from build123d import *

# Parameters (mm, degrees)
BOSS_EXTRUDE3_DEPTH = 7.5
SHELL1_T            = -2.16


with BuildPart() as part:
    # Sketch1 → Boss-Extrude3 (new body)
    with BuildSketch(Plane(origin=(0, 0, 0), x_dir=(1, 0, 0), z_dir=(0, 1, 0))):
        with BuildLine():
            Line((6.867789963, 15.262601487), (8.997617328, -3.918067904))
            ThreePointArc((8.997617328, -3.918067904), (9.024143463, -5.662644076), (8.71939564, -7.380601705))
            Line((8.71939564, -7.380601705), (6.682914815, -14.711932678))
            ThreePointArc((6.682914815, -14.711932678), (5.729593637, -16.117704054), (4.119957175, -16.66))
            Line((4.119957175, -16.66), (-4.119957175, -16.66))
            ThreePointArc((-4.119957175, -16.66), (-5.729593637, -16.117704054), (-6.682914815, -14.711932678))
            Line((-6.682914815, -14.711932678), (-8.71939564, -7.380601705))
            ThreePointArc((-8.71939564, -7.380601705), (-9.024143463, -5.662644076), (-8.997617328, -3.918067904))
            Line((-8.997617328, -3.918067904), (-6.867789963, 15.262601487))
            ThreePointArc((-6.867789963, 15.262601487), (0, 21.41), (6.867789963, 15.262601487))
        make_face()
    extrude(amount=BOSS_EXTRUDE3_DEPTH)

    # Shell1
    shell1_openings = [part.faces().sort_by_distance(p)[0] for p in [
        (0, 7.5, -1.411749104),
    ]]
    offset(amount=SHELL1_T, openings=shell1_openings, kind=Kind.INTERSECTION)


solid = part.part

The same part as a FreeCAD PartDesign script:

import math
import FreeCAD as App
import Part
import Sketcher
from FreeCAD import Vector
Q = App.Units.Quantity


def faces_at(feature, points):
    """Names of the faces that lie closest to the given points."""
    faces = feature.Shape.Faces
    near = lambda p: min(range(len(faces)), key=lambda i: faces[i].distToShape(Part.Vertex(*p))[0])
    return sorted({f"Face{near(p) + 1}" for p in points})

doc = App.newDocument("Part")
body = doc.addObject("PartDesign::Body", "Body")

# Sketch on XZ plane
sketch1 = body.newObject("Sketcher::SketchObject", "Sketch")
sketch1.AttachmentSupport = (doc.getObject("XZ_Plane"), [""])
sketch1.MapMode = "FlatFace"
sketch1.addGeometry([
    Part.LineSegment(Vector(8.997617, 3.918068, 0), Vector(6.86779, -15.262601, 0)),  # 0
    Part.ArcOfCircle(Part.Circle(Vector(0, -14.5, 0), Vector(0, 0, 1), 6.91), math.radians(-173.663816), math.radians(-6.336184)),  # 1
    Part.LineSegment(Vector(-6.86779, -15.262601, 0), Vector(-8.997617, 3.918068, 0)),  # 2
    Part.ArcOfCircle(Part.Circle(Vector(0.106428, 4.928984, 0), Vector(0, 0, 1), 9.16), math.radians(164.475889), math.radians(186.336184)),  # 3
    Part.LineSegment(Vector(-8.719396, 7.380602, 0), Vector(-6.682915, 14.711933, 0)),  # 4
    Part.ArcOfCircle(Part.Circle(Vector(-4.119957, 14, 0), Vector(0, 0, 1), 2.66), math.radians(90), math.radians(164.475889)),  # 5
    Part.LineSegment(Vector(-4.119957, 16.66, 0), Vector(4.119957, 16.66, 0)),  # 6
    Part.ArcOfCircle(Part.Circle(Vector(4.119957, 14, 0), Vector(0, 0, 1), 2.66), math.radians(15.524111), math.radians(90)),  # 7
    Part.LineSegment(Vector(6.682915, 14.711933, 0), Vector(8.719396, 7.380602, 0)),  # 8
    Part.ArcOfCircle(Part.Circle(Vector(-0.106428, 4.928984, 0), Vector(0, 0, 1), 9.16), math.radians(-6.336184), math.radians(15.524111)),  # 9
], False)
sketch1.addConstraint([
    Sketcher.Constraint("Tangent", 0, 2, 1, 2),
    Sketcher.Constraint("Tangent", 1, 1, 2, 1),
    Sketcher.Constraint("Tangent", 2, 2, 3, 2),
    Sketcher.Constraint("Tangent", 3, 1, 4, 1),
    Sketcher.Constraint("Tangent", 4, 2, 5, 2),
    Sketcher.Constraint("Tangent", 5, 1, 6, 1),
    Sketcher.Constraint("Tangent", 6, 2, 7, 2),
    Sketcher.Constraint("Tangent", 7, 1, 8, 1),
    Sketcher.Constraint("Tangent", 8, 2, 9, 2),
    Sketcher.Constraint("Tangent", 9, 1, 0, 1),
    Sketcher.Constraint("Horizontal", 6),
    Sketcher.Constraint("Equal", 5, 7),
    Sketcher.Constraint("Equal", 3, 9),
    Sketcher.Constraint("Symmetric", 3, 3, 9, 3, -2),
    Sketcher.Constraint("PointOnObject", 1, 3, -2),
    Sketcher.Constraint("Horizontal", 4, 2, 7, 1),
    Sketcher.Constraint("Radius", 1, Q("6.91 mm")),
    Sketcher.Constraint("Radius", 3, Q("9.16 mm")),
    Sketcher.Constraint("Radius", 5, Q("2.66 mm")),
    Sketcher.Constraint("DistanceY", -1, 1, 5, 3, Q("14 mm")),
    Sketcher.Constraint("DistanceY", 1, 3, -1, 1, Q("14.5 mm")),
    Sketcher.Constraint("DistanceY", 0, 2, -1, 1, Q("15.262601 mm")),
    Sketcher.Constraint("DistanceY", -1, 1, 3, 1, Q("7.380602 mm")),
    Sketcher.Constraint("Distance", 4, Q("7.60892 mm")),
])
pad1 = body.newObject("PartDesign::Pad", "Pad")
pad1.Profile = sketch1
pad1.Length = 7.5
pad1.Reversed = True
doc.recompute()

thickness = body.newObject("PartDesign::Thickness", "Thickness")
thickness.Base = (pad1, faces_at(pad1, [(0, 7.5, -2.375)]))
thickness.Value = 2.16
thickness.Reversed = True
thickness.Join = "Intersection"

doc.recompute()
